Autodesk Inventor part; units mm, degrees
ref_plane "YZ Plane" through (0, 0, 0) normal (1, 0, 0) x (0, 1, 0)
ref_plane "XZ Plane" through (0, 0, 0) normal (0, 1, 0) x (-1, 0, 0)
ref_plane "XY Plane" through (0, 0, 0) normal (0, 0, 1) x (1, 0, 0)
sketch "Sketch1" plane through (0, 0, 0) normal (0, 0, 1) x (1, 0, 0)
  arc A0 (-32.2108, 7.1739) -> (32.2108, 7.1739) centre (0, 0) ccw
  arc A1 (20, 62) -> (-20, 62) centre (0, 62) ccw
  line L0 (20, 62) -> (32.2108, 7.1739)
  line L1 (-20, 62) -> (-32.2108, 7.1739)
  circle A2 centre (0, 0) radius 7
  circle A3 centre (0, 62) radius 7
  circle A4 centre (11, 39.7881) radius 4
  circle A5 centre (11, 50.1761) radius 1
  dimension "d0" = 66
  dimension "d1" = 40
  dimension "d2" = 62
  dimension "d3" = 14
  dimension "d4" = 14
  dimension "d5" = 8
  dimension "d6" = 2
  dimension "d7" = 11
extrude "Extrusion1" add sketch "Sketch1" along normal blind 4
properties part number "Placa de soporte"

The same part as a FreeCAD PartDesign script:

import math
import FreeCAD as App
import Part
import Sketcher

doc = App.newDocument("Part")
body = doc.addObject("PartDesign::Body", "Body")

# Sketch on XY plane
sketch1 = body.newObject("Sketcher::SketchObject", "Sketch")
sketch1.AttachmentSupport = (doc.getObject("XY_Plane"), [""])
sketch1.MapMode = "FlatFace"
sketch1.addGeometry([
    Part.LineSegment(App.Vector(-20, 62, 0), App.Vector(-32.2, 7.2, 0)),  # 0
    Part.ArcOfCircle(Part.Circle(App.Vector(0, 0, 0), App.Vector(0, 0, 1), 33), math.radians(167), math.radians(373)),  # 1
    Part.LineSegment(App.Vector(32.2, 7.2, 0), App.Vector(20, 62, 0)),  # 2
    Part.ArcOfCircle(Part.Circle(App.Vector(0, 62, 0), App.Vector(0, 0, 1), 20), math.radians(0), math.radians(180)),  # 3
    Part.Circle(App.Vector(0, 0, 0), App.Vector(0, 0, 1), 7),  # 4
    Part.Circle(App.Vector(0, 62, 0), App.Vector(0, 0, 1), 7),  # 5
    Part.Circle(App.Vector(11, 39.8, 0), App.Vector(0, 0, 1), 4),  # 6
    Part.Circle(App.Vector(11, 50.2, 0), App.Vector(0, 0, 1), 1),  # 7
], False)
sketch1.addConstraint([
    Sketcher.Constraint("Tangent", 0, 2, 1, 1),
    Sketcher.Constraint("Tangent", 1, 2, 2, 1),
    Sketcher.Constraint("Coincident", 2, 2, 3, 1),
    Sketcher.Constraint("Coincident", 3, 2, 0, 1),
    Sketcher.Constraint("Coincident", 1, 3, -1, 1),
    Sketcher.Constraint("Coincident", 4, 3, -1, 1),
    Sketcher.Constraint("Coincident", 5, 3, 3, 3),
    Sketcher.Constraint("Equal", 4, 5),
    Sketcher.Constraint("Symmetric", 2, 2, 3, 2, -2),
    Sketcher.Constraint("Horizontal", 5, 3, 2, 2),
    Sketcher.Constraint("Vertical", 6, 3, 7, 3),
    Sketcher.Constraint("Diameter", 4, 14.0),
    Sketcher.Constraint("Diameter", 6, 8.0),
    Sketcher.Constraint("Diameter", 7, 2.0),
    Sketcher.Constraint("Radius", 1, 33.0),
    Sketcher.Constraint("Radius", 3, 20.0),
    Sketcher.Constraint("DistanceY", -1, 1, 3, 3, 62.0),
    Sketcher.Constraint("DistanceX", -1, 1, 6, 3, 11.0),
    Sketcher.Constraint("DistanceY", -1, 1, 6, 3, 39.788),
    Sketcher.Constraint("DistanceY", -1, 1, 7, 3, 50.176),
])
pad1 = body.newObject("PartDesign::Pad", "Pad")
pad1.Profile = sketch1
pad1.Length = 4

doc.recompute()
